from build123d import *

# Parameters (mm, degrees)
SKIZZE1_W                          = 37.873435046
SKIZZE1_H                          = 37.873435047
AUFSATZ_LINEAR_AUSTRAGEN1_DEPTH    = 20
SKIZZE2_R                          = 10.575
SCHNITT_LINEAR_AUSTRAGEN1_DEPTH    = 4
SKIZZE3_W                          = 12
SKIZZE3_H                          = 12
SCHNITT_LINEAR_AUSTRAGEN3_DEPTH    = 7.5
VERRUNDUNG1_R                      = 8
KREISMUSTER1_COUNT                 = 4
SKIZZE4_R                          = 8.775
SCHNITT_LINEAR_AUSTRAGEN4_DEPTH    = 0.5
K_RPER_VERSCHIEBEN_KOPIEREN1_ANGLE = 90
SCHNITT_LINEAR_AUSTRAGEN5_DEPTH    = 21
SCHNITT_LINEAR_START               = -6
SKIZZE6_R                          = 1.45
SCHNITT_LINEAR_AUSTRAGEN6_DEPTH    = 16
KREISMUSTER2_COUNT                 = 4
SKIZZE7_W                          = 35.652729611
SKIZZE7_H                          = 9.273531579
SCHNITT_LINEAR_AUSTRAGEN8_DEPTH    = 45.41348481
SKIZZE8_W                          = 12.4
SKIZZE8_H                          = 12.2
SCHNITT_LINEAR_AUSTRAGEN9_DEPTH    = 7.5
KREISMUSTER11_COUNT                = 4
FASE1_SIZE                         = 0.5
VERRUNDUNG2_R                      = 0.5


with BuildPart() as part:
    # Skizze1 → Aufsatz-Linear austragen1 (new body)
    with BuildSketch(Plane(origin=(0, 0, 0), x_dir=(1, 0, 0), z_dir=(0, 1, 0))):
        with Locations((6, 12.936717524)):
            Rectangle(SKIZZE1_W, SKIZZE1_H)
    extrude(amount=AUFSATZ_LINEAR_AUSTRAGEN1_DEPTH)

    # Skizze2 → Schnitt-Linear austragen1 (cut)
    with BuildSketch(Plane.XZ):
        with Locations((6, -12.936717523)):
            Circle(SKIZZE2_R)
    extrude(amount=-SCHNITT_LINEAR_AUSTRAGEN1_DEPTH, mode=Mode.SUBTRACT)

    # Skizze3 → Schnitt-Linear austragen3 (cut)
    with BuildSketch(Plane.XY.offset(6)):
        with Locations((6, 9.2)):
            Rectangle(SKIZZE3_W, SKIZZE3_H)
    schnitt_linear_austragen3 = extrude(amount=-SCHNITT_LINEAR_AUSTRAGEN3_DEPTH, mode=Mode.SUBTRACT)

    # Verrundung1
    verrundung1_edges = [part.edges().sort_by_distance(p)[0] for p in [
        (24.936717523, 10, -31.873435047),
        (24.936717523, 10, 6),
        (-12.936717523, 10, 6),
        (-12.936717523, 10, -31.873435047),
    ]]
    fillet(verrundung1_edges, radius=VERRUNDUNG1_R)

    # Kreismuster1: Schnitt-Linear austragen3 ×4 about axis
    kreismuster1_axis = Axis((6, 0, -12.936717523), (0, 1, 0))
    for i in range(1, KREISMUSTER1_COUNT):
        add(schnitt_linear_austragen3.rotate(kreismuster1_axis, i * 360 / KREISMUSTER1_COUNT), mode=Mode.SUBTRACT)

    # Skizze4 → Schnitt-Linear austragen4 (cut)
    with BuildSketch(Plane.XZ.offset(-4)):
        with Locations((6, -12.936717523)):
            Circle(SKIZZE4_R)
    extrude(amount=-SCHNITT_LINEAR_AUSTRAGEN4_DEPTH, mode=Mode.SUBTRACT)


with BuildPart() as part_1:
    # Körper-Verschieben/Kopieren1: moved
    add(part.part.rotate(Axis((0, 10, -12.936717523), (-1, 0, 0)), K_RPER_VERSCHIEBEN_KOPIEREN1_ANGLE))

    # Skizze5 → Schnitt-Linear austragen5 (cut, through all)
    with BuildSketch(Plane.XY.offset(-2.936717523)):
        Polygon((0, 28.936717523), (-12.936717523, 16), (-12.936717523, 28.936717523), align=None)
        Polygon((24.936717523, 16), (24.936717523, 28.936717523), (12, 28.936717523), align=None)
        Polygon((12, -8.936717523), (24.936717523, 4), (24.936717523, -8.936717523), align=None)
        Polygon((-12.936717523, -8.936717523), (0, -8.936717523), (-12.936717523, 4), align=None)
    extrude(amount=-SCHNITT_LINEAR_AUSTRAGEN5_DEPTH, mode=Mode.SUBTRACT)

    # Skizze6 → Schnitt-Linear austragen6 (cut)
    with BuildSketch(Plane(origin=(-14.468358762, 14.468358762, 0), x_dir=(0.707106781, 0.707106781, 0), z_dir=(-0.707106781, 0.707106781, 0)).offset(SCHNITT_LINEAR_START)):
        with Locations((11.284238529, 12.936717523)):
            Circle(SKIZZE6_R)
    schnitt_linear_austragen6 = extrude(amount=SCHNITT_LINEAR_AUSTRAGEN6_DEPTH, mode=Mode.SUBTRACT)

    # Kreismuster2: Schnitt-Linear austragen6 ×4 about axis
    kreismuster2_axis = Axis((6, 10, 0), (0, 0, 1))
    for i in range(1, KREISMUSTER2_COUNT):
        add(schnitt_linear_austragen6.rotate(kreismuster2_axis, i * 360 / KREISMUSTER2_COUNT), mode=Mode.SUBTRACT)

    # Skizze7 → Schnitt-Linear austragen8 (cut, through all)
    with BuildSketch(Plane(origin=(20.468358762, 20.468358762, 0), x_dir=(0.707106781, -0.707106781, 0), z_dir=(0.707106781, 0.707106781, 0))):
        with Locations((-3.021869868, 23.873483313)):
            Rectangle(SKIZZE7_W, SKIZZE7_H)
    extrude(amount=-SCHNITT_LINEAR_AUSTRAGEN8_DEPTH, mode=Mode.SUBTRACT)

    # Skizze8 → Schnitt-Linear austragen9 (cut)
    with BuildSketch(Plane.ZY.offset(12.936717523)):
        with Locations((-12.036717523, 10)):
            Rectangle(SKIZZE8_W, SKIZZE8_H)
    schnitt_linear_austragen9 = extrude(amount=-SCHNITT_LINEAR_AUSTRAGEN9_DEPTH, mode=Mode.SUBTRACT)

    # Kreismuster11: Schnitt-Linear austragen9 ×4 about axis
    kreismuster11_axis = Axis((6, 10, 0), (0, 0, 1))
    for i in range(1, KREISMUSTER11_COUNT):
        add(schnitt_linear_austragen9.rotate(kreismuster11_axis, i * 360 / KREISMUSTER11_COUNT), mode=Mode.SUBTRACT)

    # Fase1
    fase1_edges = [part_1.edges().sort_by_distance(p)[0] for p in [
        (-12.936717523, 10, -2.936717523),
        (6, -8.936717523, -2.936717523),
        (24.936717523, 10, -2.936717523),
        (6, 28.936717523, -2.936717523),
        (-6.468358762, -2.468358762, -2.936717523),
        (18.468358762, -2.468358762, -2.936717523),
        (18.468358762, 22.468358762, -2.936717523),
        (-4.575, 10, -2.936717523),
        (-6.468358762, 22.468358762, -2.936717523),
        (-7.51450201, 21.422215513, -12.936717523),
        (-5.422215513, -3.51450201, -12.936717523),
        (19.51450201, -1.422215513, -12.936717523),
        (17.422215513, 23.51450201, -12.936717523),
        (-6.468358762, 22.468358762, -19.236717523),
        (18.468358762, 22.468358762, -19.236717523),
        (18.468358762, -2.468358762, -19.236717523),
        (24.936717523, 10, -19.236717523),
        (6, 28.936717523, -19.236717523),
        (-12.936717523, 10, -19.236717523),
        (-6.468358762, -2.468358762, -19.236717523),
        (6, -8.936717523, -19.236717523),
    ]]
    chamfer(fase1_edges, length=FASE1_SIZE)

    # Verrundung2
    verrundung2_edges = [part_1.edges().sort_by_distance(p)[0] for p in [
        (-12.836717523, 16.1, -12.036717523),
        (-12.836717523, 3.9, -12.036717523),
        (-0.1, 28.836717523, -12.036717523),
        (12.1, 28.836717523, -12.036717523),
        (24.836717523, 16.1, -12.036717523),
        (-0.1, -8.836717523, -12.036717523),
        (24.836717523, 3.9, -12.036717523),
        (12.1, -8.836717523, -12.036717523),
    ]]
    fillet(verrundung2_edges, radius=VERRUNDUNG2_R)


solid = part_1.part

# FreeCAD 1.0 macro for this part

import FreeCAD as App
import Part
import Sketcher

V = App.Vector
Q = App.Units.Quantity


def edges_at(feature, points):
    """Names of the edges that pass closest to the given points."""
    edges = feature.Shape.Edges
    near = lambda p: min(range(len(edges)), key=lambda i: edges[i].distToShape(Part.Vertex(*p))[0])
    return sorted({f"Edge{near(p) + 1}" for p in points})


def add_polygon(sketch, points):
    """Adds a closed chain of lines whose ends are joined by coincident constraints."""
    first, n = sketch.GeometryCount, len(points)
    for a, b in zip(points, points[1:] + points[:1]):
        sketch.addGeometry(Part.LineSegment(App.Vector(*a, 0), App.Vector(*b, 0)), False)
    for i in range(n):
        sketch.addConstraint(Sketcher.Constraint("Coincident", first + i, 2, first + (i + 1) % n, 1))

doc = App.newDocument("Part")
body = doc.addObject("PartDesign::Body", "Body")

# Sketch on XZ plane
sketch1 = doc.addObject("Sketcher::SketchObject", "Sketch")
body.addObject(sketch1)
sketch1.AttachmentSupport = (doc.XZ_Plane, [""])
sketch1.MapMode = "FlatFace"
add_polygon(sketch1, [(-13, -32), (-13, 6), (25, 6), (25, -32)])  # lines 0-3
sketch1.addConstraint([
    Sketcher.Constraint("Vertical", 0),
    Sketcher.Constraint("Horizontal", 1),
    Sketcher.Constraint("Vertical", 2),
    Sketcher.Constraint("Horizontal", 3),
    Sketcher.Constraint("Equal", 3, 0),
    Sketcher.Constraint("DistanceY", -1, 1, 0, 2, Q("6 mm")),
    Sketcher.Constraint("DistanceX", 1, 1, 1, 2, Q("37.873435 mm")),
    Sketcher.Constraint("DistanceX", 0, 2, -1, 1, Q("12.936718 mm")),
])
pad1 = doc.addObject("PartDesign::Pad", "Pad")
body.addObject(pad1)
pad1.Profile = sketch1
pad1.Length = 20
pad1.Reversed = True

# Sketch on XZ plane
sketch2 = doc.addObject("Sketcher::SketchObject", "Sketch001")
body.addObject(sketch2)
sketch2.AttachmentSupport = (doc.XZ_Plane, [""])
sketch2.MapMode = "FlatFace"
sketch2.addGeometry(Part.Circle(V(6, -13, 0), V(0, 0, 1), 11), False)
sketch2.addConstraint([
    Sketcher.Constraint("Diameter", 0, Q("21.15 mm")),
    Sketcher.Constraint("DistanceX", -1, 1, 0, 3, Q("6 mm")),
    Sketcher.Constraint("DistanceY", 0, 3, -1, 1, Q("12.936718 mm")),
])
pocket1 = doc.addObject("PartDesign::Pocket", "Pocket")
body.addObject(pocket1)
pocket1.Profile = sketch2
pocket1.Length = 4

# Sketch on XY plane
sketch3 = doc.addObject("Sketcher::SketchObject", "Sketch002")
body.addObject(sketch3)
sketch3.AttachmentSupport = (doc.XY_Plane, [""])
sketch3.MapMode = "FlatFace"
sketch3.AttachmentOffset = App.Placement(V(0, 0, 6), App.Rotation())
add_polygon(sketch3, [(0, 15), (0, 3), (12, 3), (12, 15)])  # lines 0-3
sketch3.addConstraint([
    Sketcher.Constraint("Vertical", 0),
    Sketcher.Constraint("Horizontal", 1),
    Sketcher.Constraint("Vertical", 2),
    Sketcher.Constraint("Horizontal", 3),
    Sketcher.Constraint("PointOnObject", 0, 2, -2),
    Sketcher.Constraint("Equal", 3, 0),
    Sketcher.Constraint("DistanceX", 1, 1, 1, 2, Q("12 mm")),
    Sketcher.Constraint("DistanceY", -1, 1, 0, 2, Q("3.2 mm")),
])
pocket2 = doc.addObject("PartDesign::Pocket", "Pocket001")
body.addObject(pocket2)
pocket2.Profile = sketch3
pocket2.Length = 7.5
doc.recompute()

fillet = doc.addObject("PartDesign::Fillet", "Fillet")
body.addObject(fillet)
fillet.Base = (pocket2, edges_at(pocket2, [
    (24.937, 10, -31.873),
    (24.937, 10, 6),
    (-12.937, 10, 6),
    (-12.937, 10, -31.873),
]))
fillet.Radius = 8
doc.recompute()

datumline = doc.addObject("PartDesign::Line", "DatumLine")
body.addObject(datumline)
datumline.Placement = App.Placement(V(6, 0, -12.936718), App.Rotation(V(0, 0, 1), V(0, 1, 0)))
polarpattern = doc.addObject("PartDesign::PolarPattern", "PolarPattern")
body.addObject(polarpattern)
polarpattern.Originals = [pocket2]
polarpattern.Axis = (datumline, [""])
polarpattern.Angle = 360
polarpattern.Occurrences = 4
body.Tip = polarpattern

# Sketch on XZ plane
sketch4 = doc.addObject("Sketcher::SketchObject", "Sketch003")
body.addObject(sketch4)
sketch4.AttachmentSupport = (doc.XZ_Plane, [""])
sketch4.MapMode = "FlatFace"
sketch4.AttachmentOffset = App.Placement(V(0, 0, -4), App.Rotation())
sketch4.addGeometry(Part.Circle(V(6, -13, 0), V(0, 0, 1), 9), False)
sketch4.addConstraint([
    Sketcher.Constraint("Diameter", 0, Q("17.55 mm")),
    Sketcher.Constraint("DistanceX", -1, 1, 0, 3, Q("6 mm")),
    Sketcher.Constraint("DistanceY", 0, 3, -1, 1, Q("12.936718 mm")),
])
pocket3 = doc.addObject("PartDesign::Pocket", "Pocket002")
body.addObject(pocket3)
pocket3.Profile = sketch4
pocket3.Length = 0.5
body2 = doc.addObject("PartDesign::Body", "Body001")
doc.recompute()

body.Placement = App.Placement(V(0, 22.936718, -2.936718), App.Rotation(V(-1, 0, 0), 90))
boolean = doc.addObject("PartDesign::Boolean", "Boolean")
body2.addObject(boolean)
boolean.Type = "Fuse"
boolean.addObjects([body])

# Sketch on XY plane
sketch5 = doc.addObject("Sketcher::SketchObject", "Sketch004")
body2.addObject(sketch5)
sketch5.AttachmentSupport = (doc.getObject("XY_Plane001"), [""])
sketch5.MapMode = "FlatFace"
sketch5.AttachmentOffset = App.Placement(V(0, 0, -2.936718), App.Rotation())
add_polygon(sketch5, [(-13, 16), (0, 29), (-13, 29)])  # lines 0-2
add_polygon(sketch5, [(25, 16), (25, 29), (12, 29)])  # lines 3-5
add_polygon(sketch5, [(25, 4), (12, -9), (25, -9)])  # lines 6-8
add_polygon(sketch5, [(-13, -9), (0, -9), (-13, 4)])  # lines 9-11
sketch5.addConstraint([
    Sketcher.Constraint("Horizontal", 1),
    Sketcher.Constraint("Vertical", 2),
    Sketcher.Constraint("Vertical", 3),
    Sketcher.Constraint("Horizontal", 4),
    Sketcher.Constraint("Horizontal", 7),
    Sketcher.Constraint("Vertical", 8),
    Sketcher.Constraint("Horizontal", 9),
    Sketcher.Constraint("Vertical", 11),
    Sketcher.Constraint("PointOnObject", 0, 2, -2),
    Sketcher.Constraint("PointOnObject", 9, 2, -2),
    Sketcher.Constraint("Perpendicular", 0, 5),
    Sketcher.Constraint("Perpendicular", 5, 6),
    Sketcher.Constraint("Perpendicular", 6, 10),
    Sketcher.Constraint("Horizontal", 1, 2, 3, 2),
    Sketcher.Constraint("Horizontal", 2, 2, 5, 2),
    Sketcher.Constraint("Horizontal", 7, 2, 9, 2),
    Sketcher.Constraint("Horizontal", 8, 2, 10, 2),
    Sketcher.Constraint("Vertical", 4, 2, 6, 2),
    Sketcher.Constraint("Vertical", 5, 2, 7, 2),
    Sketcher.Constraint("Vertical", 2, 2, 10, 2),
    Sketcher.Constraint("DistanceY", -1, 1, 2, 2, Q("16 mm")),
    Sketcher.Constraint("DistanceX", -1, 1, 4, 2, Q("12 mm")),
    Sketcher.Constraint("DistanceY", -1, 1, 8, 2, Q("4 mm")),
    Sketcher.Constraint("Distance", 0, Q("18.295281 mm")),
])
pocket4 = doc.addObject("PartDesign::Pocket", "Pocket003")
body2.addObject(pocket4)
pocket4.Profile = sketch5
pocket4.Type = "ThroughAll"

# Sketch on an angled plane
sketch6 = doc.addObject("Sketcher::SketchObject", "Sketch005")
body2.addObject(sketch6)
sketch6.Placement = App.Placement(V(-10.225718, 10.225718, 0), App.Rotation(V(0.707106781, 0.707106781, 0), V(0, 0, -0.999999999), V(-0.707106781, 0.707106781, 0), "ZXY"))
sketch6.addGeometry(Part.Circle(V(11.3, 12.9, 0), V(0, 0, 1), 1.4), False)
sketch6.addConstraint([
    Sketcher.Constraint("Diameter", 0, Q("2.9 mm")),
    Sketcher.Constraint("DistanceX", -1, 1, 0, 3, Q("11.284239 mm")),
    Sketcher.Constraint("DistanceY", -1, 1, 0, 3, Q("12.936718 mm")),
])
pocket5 = doc.addObject("PartDesign::Pocket", "Pocket004")
body2.addObject(pocket5)
pocket5.Profile = sketch6
pocket5.Length = 16
pocket5.Reversed = True
doc.recompute()

datumline2 = doc.addObject("PartDesign::Line", "DatumLine001")
body2.addObject(datumline2)
datumline2.Placement = App.Placement(V(6, 10, 0), App.Rotation(V(0, 0, 1), V(0, 0, 1)))
polarpattern2 = doc.addObject("PartDesign::PolarPattern", "PolarPattern001")
body2.addObject(polarpattern2)
polarpattern2.Originals = [pocket5]
polarpattern2.Axis = (datumline2, [""])
polarpattern2.Angle = 360
polarpattern2.Occurrences = 4
body2.Tip = polarpattern2

# Sketch on an angled plane
sketch7 = doc.addObject("Sketcher::SketchObject", "Sketch006")
body2.addObject(sketch7)
sketch7.Placement = App.Placement(V(20.468359, 20.468359, 0), App.Rotation(V(0.707106781, -0.707106781, 0), V(0, 0, -0.999999999), V(0.707106781, 0.707106781, 0), "ZXY"))
add_polygon(sketch7, [(-21, 29), (-21, 19), (15, 19), (15, 29)])  # lines 0-3
sketch7.addConstraint([
    Sketcher.Constraint("Vertical", 0),
    Sketcher.Constraint("Horizontal", 1),
    Sketcher.Constraint("Vertical", 2),
    Sketcher.Constraint("Horizontal", 3),
    Sketcher.Constraint("DistanceX", 1, 1, 1, 2, Q("35.65273 mm")),
    Sketcher.Constraint("DistanceY", 0, 2, 0, 1, Q("9.273532 mm")),
    Sketcher.Constraint("DistanceY", -1, 1, 2, 2, Q("28.510249 mm")),
    Sketcher.Constraint("DistanceX", 0, 2, -1, 1, Q("20.848235 mm")),
])
pocket6 = doc.addObject("PartDesign::Pocket", "Pocket005")
body2.addObject(pocket6)
pocket6.Profile = sketch7
pocket6.Type = "ThroughAll"

# Sketch on YZ plane
sketch8 = doc.addObject("Sketcher::SketchObject", "Sketch007")
body2.addObject(sketch8)
sketch8.AttachmentSupport = (doc.getObject("YZ_Plane001"), [""])
sketch8.MapMode = "FlatFace"
sketch8.AttachmentOffset = App.Placement(V(0, 0, -12.936718), App.Rotation())
add_polygon(sketch8, [(16, -18), (4, -18), (4, -6), (16, -6)])  # lines 0-3
sketch8.addConstraint([
    Sketcher.Constraint("Horizontal", 0),
    Sketcher.Constraint("Vertical", 1),
    Sketcher.Constraint("Horizontal", 2),
    Sketcher.Constraint("Vertical", 3),
    Sketcher.Constraint("DistanceX", 0, 2, 0, 1, Q("12.2 mm")),
    Sketcher.Constraint("DistanceY", 1, 1, 1, 2, Q("12.4 mm")),
    Sketcher.Constraint("DistanceX", -1, 1, 0, 2, Q("3.9 mm")),
    Sketcher.Constraint("DistanceY", 0, 2, -1, 1, Q("18.236718 mm")),
])
pocket7 = doc.addObject("PartDesign::Pocket", "Pocket006")
body2.addObject(pocket7)
pocket7.Profile = sketch8
pocket7.Length = 7.5
pocket7.Reversed = True
doc.recompute()

datumline3 = doc.addObject("PartDesign::Line", "DatumLine002")
body2.addObject(datumline3)
datumline3.Placement = App.Placement(V(6, 10, 0), App.Rotation(V(0, 0, 1), V(0, 0, 1)))
polarpattern3 = doc.addObject("PartDesign::PolarPattern", "PolarPattern002")
body2.addObject(polarpattern3)
polarpattern3.Originals = [pocket7]
polarpattern3.Axis = (datumline3, [""])
polarpattern3.Angle = 360
polarpattern3.Occurrences = 4
body2.Tip = polarpattern3
doc.recompute()

chamfer = doc.addObject("PartDesign::Chamfer", "Chamfer")
body2.addObject(chamfer)
chamfer.Base = (polarpattern3, edges_at(polarpattern3, [
    (-12.937, 10, -2.937),
    (6, -8.937, -2.937),
    (24.937, 10, -2.937),
    (6, 28.937, -2.937),
    (-6.468, -2.468, -2.937),
    (18.468, -2.468, -2.937),
    (18.468, 22.468, -2.937),
    (-4.575, 10, -2.937),
    (-6.468, 22.468, -2.937),
    (-7.515, 21.422, -12.937),
    (-5.422, -3.515, -12.937),
    (19.515, -1.422, -12.937),
    (17.422, 23.515, -12.937),
    (-6.468, 22.468, -19.237),
    (18.468, 22.468, -19.237),
    (18.468, -2.468, -19.237),
    (24.937, 10, -19.237),
    (6, 28.937, -19.237),
    (-12.937, 10, -19.237),
    (-6.468, -2.468, -19.237),
    (6, -8.937, -19.237),
]))
chamfer.Size = 0.5
doc.recompute()

fillet2 = doc.addObject("PartDesign::Fillet", "Fillet001")
body2.addObject(fillet2)
fillet2.Base = (chamfer, edges_at(chamfer, [
    (-12.837, 16.1, -12.037),
    (-12.837, 3.9, -12.037),
    (-0.1, 28.837, -12.037),
    (12.1, 28.837, -12.037),
    (24.837, 16.1, -12.037),
    (-0.1, -8.837, -12.037),
    (24.837, 3.9, -12.037),
    (12.1, -8.837, -12.037),
]))
fillet2.Radius = 0.5

doc.recompute()
